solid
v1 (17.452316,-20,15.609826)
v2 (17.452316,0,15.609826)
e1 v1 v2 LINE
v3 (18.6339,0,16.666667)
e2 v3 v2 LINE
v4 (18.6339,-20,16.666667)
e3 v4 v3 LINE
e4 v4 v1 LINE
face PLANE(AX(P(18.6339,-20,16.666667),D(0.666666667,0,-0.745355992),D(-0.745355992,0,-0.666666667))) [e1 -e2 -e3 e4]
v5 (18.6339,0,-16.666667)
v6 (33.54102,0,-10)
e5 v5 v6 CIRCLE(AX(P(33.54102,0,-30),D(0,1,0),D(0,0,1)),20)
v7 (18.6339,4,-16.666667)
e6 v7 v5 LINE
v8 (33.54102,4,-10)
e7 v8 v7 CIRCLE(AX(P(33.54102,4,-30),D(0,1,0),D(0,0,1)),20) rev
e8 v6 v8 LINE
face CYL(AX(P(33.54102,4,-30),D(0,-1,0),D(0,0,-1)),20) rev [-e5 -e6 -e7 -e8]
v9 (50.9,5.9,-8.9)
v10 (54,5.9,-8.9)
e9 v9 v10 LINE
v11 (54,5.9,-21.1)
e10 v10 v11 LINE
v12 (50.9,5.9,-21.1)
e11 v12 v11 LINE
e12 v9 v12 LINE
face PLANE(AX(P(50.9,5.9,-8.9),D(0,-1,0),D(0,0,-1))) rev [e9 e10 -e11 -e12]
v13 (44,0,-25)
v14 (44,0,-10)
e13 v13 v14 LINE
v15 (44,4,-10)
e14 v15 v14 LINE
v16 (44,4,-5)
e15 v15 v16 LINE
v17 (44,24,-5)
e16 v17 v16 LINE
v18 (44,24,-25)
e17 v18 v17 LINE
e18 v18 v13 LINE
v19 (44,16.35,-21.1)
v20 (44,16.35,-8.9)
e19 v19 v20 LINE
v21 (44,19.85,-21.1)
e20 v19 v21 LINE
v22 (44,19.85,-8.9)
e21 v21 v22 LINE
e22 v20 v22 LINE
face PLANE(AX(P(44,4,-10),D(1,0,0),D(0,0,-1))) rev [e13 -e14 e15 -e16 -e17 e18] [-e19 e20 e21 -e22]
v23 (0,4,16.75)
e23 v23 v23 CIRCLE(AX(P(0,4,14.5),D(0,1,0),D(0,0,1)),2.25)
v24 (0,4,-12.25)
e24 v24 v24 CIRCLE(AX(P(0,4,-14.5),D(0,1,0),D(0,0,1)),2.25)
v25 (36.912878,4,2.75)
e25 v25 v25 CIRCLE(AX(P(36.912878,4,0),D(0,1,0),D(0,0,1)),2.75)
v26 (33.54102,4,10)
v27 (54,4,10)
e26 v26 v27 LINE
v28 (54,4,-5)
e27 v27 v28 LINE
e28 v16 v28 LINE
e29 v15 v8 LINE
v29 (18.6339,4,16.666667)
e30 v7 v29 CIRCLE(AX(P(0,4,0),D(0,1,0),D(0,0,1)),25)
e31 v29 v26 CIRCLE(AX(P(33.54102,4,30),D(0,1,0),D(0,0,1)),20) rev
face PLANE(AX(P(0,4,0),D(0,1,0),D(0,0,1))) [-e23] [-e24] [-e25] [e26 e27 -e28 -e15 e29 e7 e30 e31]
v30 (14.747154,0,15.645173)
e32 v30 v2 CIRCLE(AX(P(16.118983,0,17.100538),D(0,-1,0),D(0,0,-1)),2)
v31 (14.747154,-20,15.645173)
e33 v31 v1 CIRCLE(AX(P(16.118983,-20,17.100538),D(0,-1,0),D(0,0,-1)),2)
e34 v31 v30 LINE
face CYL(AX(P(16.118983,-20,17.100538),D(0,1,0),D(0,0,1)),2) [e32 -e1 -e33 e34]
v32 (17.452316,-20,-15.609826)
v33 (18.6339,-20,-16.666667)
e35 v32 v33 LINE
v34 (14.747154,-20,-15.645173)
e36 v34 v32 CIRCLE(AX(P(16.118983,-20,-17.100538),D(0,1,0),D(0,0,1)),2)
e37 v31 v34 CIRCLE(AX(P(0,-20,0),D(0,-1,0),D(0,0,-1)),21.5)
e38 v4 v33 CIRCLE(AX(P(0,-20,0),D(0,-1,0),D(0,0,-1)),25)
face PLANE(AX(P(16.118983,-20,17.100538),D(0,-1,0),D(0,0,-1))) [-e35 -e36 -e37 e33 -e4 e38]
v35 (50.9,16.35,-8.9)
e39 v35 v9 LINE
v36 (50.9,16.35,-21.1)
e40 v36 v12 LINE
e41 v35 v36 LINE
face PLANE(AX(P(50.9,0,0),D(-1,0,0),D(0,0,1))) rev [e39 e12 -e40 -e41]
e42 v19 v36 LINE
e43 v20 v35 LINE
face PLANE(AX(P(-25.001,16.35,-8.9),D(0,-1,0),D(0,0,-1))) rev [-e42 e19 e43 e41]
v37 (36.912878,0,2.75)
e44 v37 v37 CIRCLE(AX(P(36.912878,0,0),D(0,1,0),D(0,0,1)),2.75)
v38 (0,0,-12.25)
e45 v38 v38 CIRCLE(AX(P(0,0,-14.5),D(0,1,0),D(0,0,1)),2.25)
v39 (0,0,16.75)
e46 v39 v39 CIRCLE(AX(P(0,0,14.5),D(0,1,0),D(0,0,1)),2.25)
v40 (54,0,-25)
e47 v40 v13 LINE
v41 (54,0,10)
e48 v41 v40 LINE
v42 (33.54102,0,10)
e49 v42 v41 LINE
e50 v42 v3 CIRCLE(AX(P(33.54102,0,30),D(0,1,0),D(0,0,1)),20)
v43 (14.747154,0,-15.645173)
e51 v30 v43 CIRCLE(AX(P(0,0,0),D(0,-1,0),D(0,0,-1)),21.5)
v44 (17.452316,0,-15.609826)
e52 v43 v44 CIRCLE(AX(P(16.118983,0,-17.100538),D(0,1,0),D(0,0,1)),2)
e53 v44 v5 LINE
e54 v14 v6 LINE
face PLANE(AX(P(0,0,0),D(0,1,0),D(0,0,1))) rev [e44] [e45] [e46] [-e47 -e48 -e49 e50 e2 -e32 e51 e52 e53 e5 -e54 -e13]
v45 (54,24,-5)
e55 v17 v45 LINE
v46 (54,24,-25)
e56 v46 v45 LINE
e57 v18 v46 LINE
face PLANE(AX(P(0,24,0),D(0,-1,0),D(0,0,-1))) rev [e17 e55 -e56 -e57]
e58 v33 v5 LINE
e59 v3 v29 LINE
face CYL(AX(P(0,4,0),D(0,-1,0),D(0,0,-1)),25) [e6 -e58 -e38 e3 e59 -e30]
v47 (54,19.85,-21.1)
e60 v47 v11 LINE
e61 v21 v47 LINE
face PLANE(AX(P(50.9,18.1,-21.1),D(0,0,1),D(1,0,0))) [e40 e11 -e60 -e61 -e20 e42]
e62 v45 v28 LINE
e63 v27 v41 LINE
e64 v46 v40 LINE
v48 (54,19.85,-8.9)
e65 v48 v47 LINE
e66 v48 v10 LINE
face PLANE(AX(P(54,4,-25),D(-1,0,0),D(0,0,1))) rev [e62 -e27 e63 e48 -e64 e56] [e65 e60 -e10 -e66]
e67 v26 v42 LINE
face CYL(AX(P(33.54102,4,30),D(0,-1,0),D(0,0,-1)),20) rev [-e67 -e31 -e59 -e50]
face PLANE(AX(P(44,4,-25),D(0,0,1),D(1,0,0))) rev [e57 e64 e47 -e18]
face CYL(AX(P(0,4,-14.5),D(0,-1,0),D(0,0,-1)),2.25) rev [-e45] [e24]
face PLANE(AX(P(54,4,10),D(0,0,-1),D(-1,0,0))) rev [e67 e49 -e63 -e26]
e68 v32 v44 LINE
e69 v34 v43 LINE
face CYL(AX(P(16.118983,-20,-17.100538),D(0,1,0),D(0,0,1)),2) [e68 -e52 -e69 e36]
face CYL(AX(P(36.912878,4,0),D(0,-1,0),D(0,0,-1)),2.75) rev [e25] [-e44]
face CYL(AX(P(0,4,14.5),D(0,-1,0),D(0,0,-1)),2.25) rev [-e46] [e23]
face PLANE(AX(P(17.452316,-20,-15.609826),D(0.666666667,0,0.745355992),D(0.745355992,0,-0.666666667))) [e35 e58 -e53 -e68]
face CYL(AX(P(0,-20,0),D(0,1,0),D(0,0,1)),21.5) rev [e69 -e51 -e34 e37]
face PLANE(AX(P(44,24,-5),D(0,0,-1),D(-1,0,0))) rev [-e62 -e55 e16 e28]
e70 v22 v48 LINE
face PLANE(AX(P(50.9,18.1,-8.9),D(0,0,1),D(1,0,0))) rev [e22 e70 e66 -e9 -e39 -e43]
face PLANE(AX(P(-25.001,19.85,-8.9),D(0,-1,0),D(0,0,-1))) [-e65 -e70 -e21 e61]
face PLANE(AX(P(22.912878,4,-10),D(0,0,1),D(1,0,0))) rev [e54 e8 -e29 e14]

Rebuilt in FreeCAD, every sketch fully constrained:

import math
import FreeCAD as App
import Part
import Sketcher

V = App.Vector


def edges_at(feature, points):
    """Names of the edges that pass closest to the given points."""
    edges = feature.Shape.Edges
    near = lambda p: min(range(len(edges)), key=lambda i: edges[i].distToShape(Part.Vertex(*p))[0])
    return sorted({f"Edge{near(p) + 1}" for p in points})

doc = App.newDocument("Part")
body = doc.addObject("PartDesign::Body", "Body")

sketch1 = doc.addObject("Sketcher::SketchObject", "Sketch")
body.addObject(sketch1)
sketch1.AttachmentSupport = (doc.XZ_Plane, [""])
sketch1.MapMode = "FlatFace"
sketch1.addGeometry(Part.LineSegment(V(44, -10, 0), V(23, -10, 0)), False)
sketch1.addGeometry(Part.ArcOfCircle(Part.Circle(V(0, 0, 0), V(0, 0, 1), 25), math.radians(24), math.radians(336)), False)
sketch1.addGeometry(Part.LineSegment(V(23, 10, 0), V(54, 10, 0)), False)
sketch1.addGeometry(Part.LineSegment(V(54, 10, 0), V(54, -25, 0)), False)
sketch1.addGeometry(Part.LineSegment(V(54, -25, 0), V(44, -25, 0)), False)
sketch1.addGeometry(Part.LineSegment(V(44, -25, 0), V(44, -10, 0)), False)
sketch1.addConstraint(Sketcher.Constraint("Coincident", 0, 2, 1, 2))
sketch1.addConstraint(Sketcher.Constraint("Coincident", 1, 1, 2, 1))
sketch1.addConstraint(Sketcher.Constraint("Coincident", 2, 2, 3, 1))
sketch1.addConstraint(Sketcher.Constraint("Coincident", 3, 2, 4, 1))
sketch1.addConstraint(Sketcher.Constraint("Coincident", 4, 2, 5, 1))
sketch1.addConstraint(Sketcher.Constraint("Coincident", 5, 2, 0, 1))
sketch1.addConstraint(Sketcher.Constraint("Horizontal", 0))
sketch1.addConstraint(Sketcher.Constraint("Horizontal", 2))
sketch1.addConstraint(Sketcher.Constraint("Vertical", 3))
sketch1.addConstraint(Sketcher.Constraint("Horizontal", 4))
sketch1.addConstraint(Sketcher.Constraint("Vertical", 5))
sketch1.addConstraint(Sketcher.Constraint("Coincident", 1, 3, -1, 1))
sketch1.addConstraint(Sketcher.Constraint("Vertical", 0, 2, 1, 1))
sketch1.addConstraint(Sketcher.Constraint("Radius", 1, 25.0))
sketch1.addConstraint(Sketcher.Constraint("DistanceX", 4, 2, 4, 1, 10.0))
sketch1.addConstraint(Sketcher.Constraint("DistanceY", 3, 2, 3, 1, 35.0))
sketch1.addConstraint(Sketcher.Constraint("DistanceY", 5, 1, 5, 2, 15.0))
sketch1.addConstraint(Sketcher.Constraint("DistanceX", -1, 1, 2, 2, 54.0))
pad1 = doc.addObject("PartDesign::Pad", "Pad")
body.addObject(pad1)
pad1.Profile = sketch1
pad1.Length = 4
pad1.Reversed = True
doc.recompute()

fillet = doc.addObject("PartDesign::Fillet", "Fillet")
body.addObject(fillet)
fillet.Base = (pad1, edges_at(pad1, [(22.913, 2, 10), (22.913, 2, -10)]))
fillet.Radius = 20

sketch2 = doc.addObject("Sketcher::SketchObject", "Sketch001")
body.addObject(sketch2)
sketch2.AttachmentSupport = (doc.XZ_Plane, [""])
sketch2.MapMode = "FlatFace"
sketch2.addGeometry(Part.Circle(V(0, -14.5, 0), V(0, 0, 1), 2.2), False)
sketch2.addGeometry(Part.Circle(V(0, 14.5, 0), V(0, 0, 1), 2.2), False)
sketch2.addGeometry(Part.Circle(V(36.9, 0, 0), V(0, 0, 1), 2.8), False)
sketch2.addConstraint(Sketcher.Constraint("Equal", 0, 1))
sketch2.addConstraint(Sketcher.Constraint("Symmetric", 0, 3, 1, 3, -1, 1))
sketch2.addConstraint(Sketcher.Constraint("PointOnObject", 0, 3, -2))
sketch2.addConstraint(Sketcher.Constraint("PointOnObject", 2, 3, -1))
sketch2.addConstraint(Sketcher.Constraint("Diameter", 0, 4.5))
sketch2.addConstraint(Sketcher.Constraint("Diameter", 2, 5.5))
sketch2.addConstraint(Sketcher.Constraint("DistanceY", 0, 3, 1, 3, 29.0))
sketch2.addConstraint(Sketcher.Constraint("DistanceX", -1, 1, 2, 3, 36.912878))
pocket1 = doc.addObject("PartDesign::Pocket", "Pocket")
body.addObject(pocket1)
pocket1.Profile = sketch2
pocket1.Type = "ThroughAll"

sketch3 = doc.addObject("Sketcher::SketchObject", "Sketch002")
body.addObject(sketch3)
sketch3.AttachmentSupport = (doc.XZ_Plane, [""])
sketch3.MapMode = "FlatFace"
sketch3.AttachmentOffset = App.Placement(V(0, 0, 20), App.Rotation())
sketch3.addGeometry(Part.LineSegment(V(17.5, 15.6, 0), V(18.6, 16.7, 0)), False)
sketch3.addGeometry(Part.ArcOfCircle(Part.Circle(V(0, 0, 0), V(0, 0, 1), 25), math.radians(42), math.radians(318)), False)
sketch3.addGeometry(Part.LineSegment(V(18.6, -16.7, 0), V(17.5, -15.6, 0)), False)
sketch3.addGeometry(Part.ArcOfCircle(Part.Circle(V(16.1, -17.1, 0), V(0, 0, 1), 2), math.radians(48), math.radians(133)), False)
sketch3.addGeometry(Part.ArcOfCircle(Part.Circle(V(0, 0, 0), V(0, 0, 1), 21.5), math.radians(47), math.radians(313)), False)
sketch3.addGeometry(Part.ArcOfCircle(Part.Circle(V(16.1, 17.1, 0), V(0, 0, 1), 2), math.radians(-133), math.radians(-48)), False)
sketch3.addConstraint(Sketcher.Constraint("Coincident", 0, 2, 1, 1))
sketch3.addConstraint(Sketcher.Constraint("Coincident", 1, 2, 2, 1))
sketch3.addConstraint(Sketcher.Constraint("Tangent", 2, 2, 3, 1))
sketch3.addConstraint(Sketcher.Constraint("Tangent", 3, 2, 4, 2))
sketch3.addConstraint(Sketcher.Constraint("Tangent", 4, 1, 5, 1))
sketch3.addConstraint(Sketcher.Constraint("Tangent", 5, 2, 0, 1))
sketch3.addConstraint(Sketcher.Constraint("Coincident", 1, 3, -1, 1))
sketch3.addConstraint(Sketcher.Constraint("Coincident", 4, 3, -1, 1))
sketch3.addConstraint(Sketcher.Constraint("Equal", 3, 5))
sketch3.addConstraint(Sketcher.Constraint("Symmetric", 2, 2, 5, 2, -1))
sketch3.addConstraint(Sketcher.Constraint("Radius", 1, 25.0))
sketch3.addConstraint(Sketcher.Constraint("Radius", 3, 2.0))
sketch3.addConstraint(Sketcher.Constraint("Radius", 4, 21.5))
sketch3.addConstraint(Sketcher.Constraint("DistanceX", -1, 1, 0, 2, 18.6339))
sketch3.addConstraint(Sketcher.Constraint("Distance", 0, 1.585261))
pad2 = doc.addObject("PartDesign::Pad", "Pad001")
body.addObject(pad2)
pad2.Profile = sketch3
pad2.Length = 20
pad2.Reversed = True

sketch4 = doc.addObject("Sketcher::SketchObject", "Sketch003")
body.addObject(sketch4)
sketch4.AttachmentSupport = (doc.XZ_Plane, [""])
sketch4.MapMode = "FlatFace"
sketch4.AttachmentOffset = App.Placement(V(0, 0, -4), App.Rotation())
sketch4.addGeometry(Part.LineSegment(V(44, -25, 0), V(44, -5, 0)), False)
sketch4.addGeometry(Part.LineSegment(V(44, -5, 0), V(54, -5, 0)), False)
sketch4.addGeometry(Part.LineSegment(V(54, -5, 0), V(54, -25, 0)), False)
sketch4.addGeometry(Part.LineSegment(V(54, -25, 0), V(44, -25, 0)), False)
sketch4.addConstraint(Sketcher.Constraint("Coincident", 0, 2, 1, 1))
sketch4.addConstraint(Sketcher.Constraint("Coincident", 1, 2, 2, 1))
sketch4.addConstraint(Sketcher.Constraint("Coincident", 2, 2, 3, 1))
sketch4.addConstraint(Sketcher.Constraint("Coincident", 3, 2, 0, 1))
sketch4.addConstraint(Sketcher.Constraint("Vertical", 0))
sketch4.addConstraint(Sketcher.Constraint("Horizontal", 1))
sketch4.addConstraint(Sketcher.Constraint("Vertical", 2))
sketch4.addConstraint(Sketcher.Constraint("Horizontal", 3))
sketch4.addConstraint(Sketcher.Constraint("DistanceX", 1, 1, 1, 2, 10.0))
sketch4.addConstraint(Sketcher.Constraint("DistanceY", 0, 1, 0, 2, 20.0))
sketch4.addConstraint(Sketcher.Constraint("DistanceX", -1, 1, 0, 2, 44.0))
sketch4.addConstraint(Sketcher.Constraint("DistanceY", 0, 2, -1, 1, 5.0))
pad3 = doc.addObject("PartDesign::Pad", "Pad002")
body.addObject(pad3)
pad3.Profile = sketch4
pad3.Length = 20
pad3.Reversed = True

sketch5 = doc.addObject("Sketcher::SketchObject", "Sketch004")
body.addObject(sketch5)
sketch5.AttachmentSupport = (doc.YZ_Plane, [""])
sketch5.MapMode = "FlatFace"
sketch5.AttachmentOffset = App.Placement(V(0, 0, 54), App.Rotation())
sketch5.addGeometry(Part.LineSegment(V(18, -9, 0), V(6, -9, 0)), False)
sketch5.addGeometry(Part.LineSegment(V(6, -9, 0), V(6, -21, 0)), False)
sketch5.addGeometry(Part.LineSegment(V(6, -21, 0), V(18, -21, 0)), False)
sketch5.addGeometry(Part.LineSegment(V(18, -21, 0), V(18, -9, 0)), False)
sketch5.addConstraint(Sketcher.Constraint("Coincident", 0, 2, 1, 1))
sketch5.addConstraint(Sketcher.Constraint("Coincident", 1, 2, 2, 1))
sketch5.addConstraint(Sketcher.Constraint("Coincident", 2, 2, 3, 1))
sketch5.addConstraint(Sketcher.Constraint("Coincident", 3, 2, 0, 1))
sketch5.addConstraint(Sketcher.Constraint("Horizontal", 0))
sketch5.addConstraint(Sketcher.Constraint("Vertical", 1))
sketch5.addConstraint(Sketcher.Constraint("Horizontal", 2))
sketch5.addConstraint(Sketcher.Constraint("Vertical", 3))
sketch5.addConstraint(Sketcher.Constraint("Equal", 2, 1))
sketch5.addConstraint(Sketcher.Constraint("DistanceX", 0, 2, 0, 1, 12.2))
sketch5.addConstraint(Sketcher.Constraint("DistanceX", -1, 1, 0, 2, 5.9))
sketch5.addConstraint(Sketcher.Constraint("DistanceY", 0, 2, -1, 1, 8.9))
pocket2 = doc.addObject("PartDesign::Pocket", "Pocket001")
body.addObject(pocket2)
pocket2.Profile = sketch5
pocket2.Length = 3.1

sketch6 = doc.addObject("Sketcher::SketchObject", "Sketch005")
body.addObject(sketch6)
sketch6.AttachmentSupport = (doc.YZ_Plane, [""])
sketch6.MapMode = "FlatFace"
sketch6.AttachmentOffset = App.Placement(V(0, 0, 54), App.Rotation())
sketch6.addGeometry(Part.LineSegment(V(19.9, -8.9, 0), V(16.4, -8.9, 0)), False)
sketch6.addGeometry(Part.LineSegment(V(16.4, -8.9, 0), V(16.4, -21.1, 0)), False)
sketch6.addGeometry(Part.LineSegment(V(16.4, -21.1, 0), V(19.9, -21.1, 0)), False)
sketch6.addGeometry(Part.LineSegment(V(19.9, -21.1, 0), V(19.9, -8.9, 0)), False)
sketch6.addConstraint(Sketcher.Constraint("Coincident", 0, 2, 1, 1))
sketch6.addConstraint(Sketcher.Constraint("Coincident", 1, 2, 2, 1))
sketch6.addConstraint(Sketcher.Constraint("Coincident", 2, 2, 3, 1))
sketch6.addConstraint(Sketcher.Constraint("Coincident", 3, 2, 0, 1))
sketch6.addConstraint(Sketcher.Constraint("Horizontal", 0))
sketch6.addConstraint(Sketcher.Constraint("Vertical", 1))
sketch6.addConstraint(Sketcher.Constraint("Horizontal", 2))
sketch6.addConstraint(Sketcher.Constraint("Vertical", 3))
sketch6.addConstraint(Sketcher.Constraint("DistanceX", 0, 2, 0, 1, 3.5))
sketch6.addConstraint(Sketcher.Constraint("DistanceY", 1, 2, 1, 1, 12.2))
sketch6.addConstraint(Sketcher.Constraint("DistanceY", 0, 2, -1, 1, 8.9))
sketch6.addConstraint(Sketcher.Constraint("DistanceX", -1, 1, 0, 2, 16.35))
pocket3 = doc.addObject("PartDesign::Pocket", "Pocket002")
body.addObject(pocket3)
pocket3.Profile = sketch6
pocket3.Length = 10

doc.recompute()
